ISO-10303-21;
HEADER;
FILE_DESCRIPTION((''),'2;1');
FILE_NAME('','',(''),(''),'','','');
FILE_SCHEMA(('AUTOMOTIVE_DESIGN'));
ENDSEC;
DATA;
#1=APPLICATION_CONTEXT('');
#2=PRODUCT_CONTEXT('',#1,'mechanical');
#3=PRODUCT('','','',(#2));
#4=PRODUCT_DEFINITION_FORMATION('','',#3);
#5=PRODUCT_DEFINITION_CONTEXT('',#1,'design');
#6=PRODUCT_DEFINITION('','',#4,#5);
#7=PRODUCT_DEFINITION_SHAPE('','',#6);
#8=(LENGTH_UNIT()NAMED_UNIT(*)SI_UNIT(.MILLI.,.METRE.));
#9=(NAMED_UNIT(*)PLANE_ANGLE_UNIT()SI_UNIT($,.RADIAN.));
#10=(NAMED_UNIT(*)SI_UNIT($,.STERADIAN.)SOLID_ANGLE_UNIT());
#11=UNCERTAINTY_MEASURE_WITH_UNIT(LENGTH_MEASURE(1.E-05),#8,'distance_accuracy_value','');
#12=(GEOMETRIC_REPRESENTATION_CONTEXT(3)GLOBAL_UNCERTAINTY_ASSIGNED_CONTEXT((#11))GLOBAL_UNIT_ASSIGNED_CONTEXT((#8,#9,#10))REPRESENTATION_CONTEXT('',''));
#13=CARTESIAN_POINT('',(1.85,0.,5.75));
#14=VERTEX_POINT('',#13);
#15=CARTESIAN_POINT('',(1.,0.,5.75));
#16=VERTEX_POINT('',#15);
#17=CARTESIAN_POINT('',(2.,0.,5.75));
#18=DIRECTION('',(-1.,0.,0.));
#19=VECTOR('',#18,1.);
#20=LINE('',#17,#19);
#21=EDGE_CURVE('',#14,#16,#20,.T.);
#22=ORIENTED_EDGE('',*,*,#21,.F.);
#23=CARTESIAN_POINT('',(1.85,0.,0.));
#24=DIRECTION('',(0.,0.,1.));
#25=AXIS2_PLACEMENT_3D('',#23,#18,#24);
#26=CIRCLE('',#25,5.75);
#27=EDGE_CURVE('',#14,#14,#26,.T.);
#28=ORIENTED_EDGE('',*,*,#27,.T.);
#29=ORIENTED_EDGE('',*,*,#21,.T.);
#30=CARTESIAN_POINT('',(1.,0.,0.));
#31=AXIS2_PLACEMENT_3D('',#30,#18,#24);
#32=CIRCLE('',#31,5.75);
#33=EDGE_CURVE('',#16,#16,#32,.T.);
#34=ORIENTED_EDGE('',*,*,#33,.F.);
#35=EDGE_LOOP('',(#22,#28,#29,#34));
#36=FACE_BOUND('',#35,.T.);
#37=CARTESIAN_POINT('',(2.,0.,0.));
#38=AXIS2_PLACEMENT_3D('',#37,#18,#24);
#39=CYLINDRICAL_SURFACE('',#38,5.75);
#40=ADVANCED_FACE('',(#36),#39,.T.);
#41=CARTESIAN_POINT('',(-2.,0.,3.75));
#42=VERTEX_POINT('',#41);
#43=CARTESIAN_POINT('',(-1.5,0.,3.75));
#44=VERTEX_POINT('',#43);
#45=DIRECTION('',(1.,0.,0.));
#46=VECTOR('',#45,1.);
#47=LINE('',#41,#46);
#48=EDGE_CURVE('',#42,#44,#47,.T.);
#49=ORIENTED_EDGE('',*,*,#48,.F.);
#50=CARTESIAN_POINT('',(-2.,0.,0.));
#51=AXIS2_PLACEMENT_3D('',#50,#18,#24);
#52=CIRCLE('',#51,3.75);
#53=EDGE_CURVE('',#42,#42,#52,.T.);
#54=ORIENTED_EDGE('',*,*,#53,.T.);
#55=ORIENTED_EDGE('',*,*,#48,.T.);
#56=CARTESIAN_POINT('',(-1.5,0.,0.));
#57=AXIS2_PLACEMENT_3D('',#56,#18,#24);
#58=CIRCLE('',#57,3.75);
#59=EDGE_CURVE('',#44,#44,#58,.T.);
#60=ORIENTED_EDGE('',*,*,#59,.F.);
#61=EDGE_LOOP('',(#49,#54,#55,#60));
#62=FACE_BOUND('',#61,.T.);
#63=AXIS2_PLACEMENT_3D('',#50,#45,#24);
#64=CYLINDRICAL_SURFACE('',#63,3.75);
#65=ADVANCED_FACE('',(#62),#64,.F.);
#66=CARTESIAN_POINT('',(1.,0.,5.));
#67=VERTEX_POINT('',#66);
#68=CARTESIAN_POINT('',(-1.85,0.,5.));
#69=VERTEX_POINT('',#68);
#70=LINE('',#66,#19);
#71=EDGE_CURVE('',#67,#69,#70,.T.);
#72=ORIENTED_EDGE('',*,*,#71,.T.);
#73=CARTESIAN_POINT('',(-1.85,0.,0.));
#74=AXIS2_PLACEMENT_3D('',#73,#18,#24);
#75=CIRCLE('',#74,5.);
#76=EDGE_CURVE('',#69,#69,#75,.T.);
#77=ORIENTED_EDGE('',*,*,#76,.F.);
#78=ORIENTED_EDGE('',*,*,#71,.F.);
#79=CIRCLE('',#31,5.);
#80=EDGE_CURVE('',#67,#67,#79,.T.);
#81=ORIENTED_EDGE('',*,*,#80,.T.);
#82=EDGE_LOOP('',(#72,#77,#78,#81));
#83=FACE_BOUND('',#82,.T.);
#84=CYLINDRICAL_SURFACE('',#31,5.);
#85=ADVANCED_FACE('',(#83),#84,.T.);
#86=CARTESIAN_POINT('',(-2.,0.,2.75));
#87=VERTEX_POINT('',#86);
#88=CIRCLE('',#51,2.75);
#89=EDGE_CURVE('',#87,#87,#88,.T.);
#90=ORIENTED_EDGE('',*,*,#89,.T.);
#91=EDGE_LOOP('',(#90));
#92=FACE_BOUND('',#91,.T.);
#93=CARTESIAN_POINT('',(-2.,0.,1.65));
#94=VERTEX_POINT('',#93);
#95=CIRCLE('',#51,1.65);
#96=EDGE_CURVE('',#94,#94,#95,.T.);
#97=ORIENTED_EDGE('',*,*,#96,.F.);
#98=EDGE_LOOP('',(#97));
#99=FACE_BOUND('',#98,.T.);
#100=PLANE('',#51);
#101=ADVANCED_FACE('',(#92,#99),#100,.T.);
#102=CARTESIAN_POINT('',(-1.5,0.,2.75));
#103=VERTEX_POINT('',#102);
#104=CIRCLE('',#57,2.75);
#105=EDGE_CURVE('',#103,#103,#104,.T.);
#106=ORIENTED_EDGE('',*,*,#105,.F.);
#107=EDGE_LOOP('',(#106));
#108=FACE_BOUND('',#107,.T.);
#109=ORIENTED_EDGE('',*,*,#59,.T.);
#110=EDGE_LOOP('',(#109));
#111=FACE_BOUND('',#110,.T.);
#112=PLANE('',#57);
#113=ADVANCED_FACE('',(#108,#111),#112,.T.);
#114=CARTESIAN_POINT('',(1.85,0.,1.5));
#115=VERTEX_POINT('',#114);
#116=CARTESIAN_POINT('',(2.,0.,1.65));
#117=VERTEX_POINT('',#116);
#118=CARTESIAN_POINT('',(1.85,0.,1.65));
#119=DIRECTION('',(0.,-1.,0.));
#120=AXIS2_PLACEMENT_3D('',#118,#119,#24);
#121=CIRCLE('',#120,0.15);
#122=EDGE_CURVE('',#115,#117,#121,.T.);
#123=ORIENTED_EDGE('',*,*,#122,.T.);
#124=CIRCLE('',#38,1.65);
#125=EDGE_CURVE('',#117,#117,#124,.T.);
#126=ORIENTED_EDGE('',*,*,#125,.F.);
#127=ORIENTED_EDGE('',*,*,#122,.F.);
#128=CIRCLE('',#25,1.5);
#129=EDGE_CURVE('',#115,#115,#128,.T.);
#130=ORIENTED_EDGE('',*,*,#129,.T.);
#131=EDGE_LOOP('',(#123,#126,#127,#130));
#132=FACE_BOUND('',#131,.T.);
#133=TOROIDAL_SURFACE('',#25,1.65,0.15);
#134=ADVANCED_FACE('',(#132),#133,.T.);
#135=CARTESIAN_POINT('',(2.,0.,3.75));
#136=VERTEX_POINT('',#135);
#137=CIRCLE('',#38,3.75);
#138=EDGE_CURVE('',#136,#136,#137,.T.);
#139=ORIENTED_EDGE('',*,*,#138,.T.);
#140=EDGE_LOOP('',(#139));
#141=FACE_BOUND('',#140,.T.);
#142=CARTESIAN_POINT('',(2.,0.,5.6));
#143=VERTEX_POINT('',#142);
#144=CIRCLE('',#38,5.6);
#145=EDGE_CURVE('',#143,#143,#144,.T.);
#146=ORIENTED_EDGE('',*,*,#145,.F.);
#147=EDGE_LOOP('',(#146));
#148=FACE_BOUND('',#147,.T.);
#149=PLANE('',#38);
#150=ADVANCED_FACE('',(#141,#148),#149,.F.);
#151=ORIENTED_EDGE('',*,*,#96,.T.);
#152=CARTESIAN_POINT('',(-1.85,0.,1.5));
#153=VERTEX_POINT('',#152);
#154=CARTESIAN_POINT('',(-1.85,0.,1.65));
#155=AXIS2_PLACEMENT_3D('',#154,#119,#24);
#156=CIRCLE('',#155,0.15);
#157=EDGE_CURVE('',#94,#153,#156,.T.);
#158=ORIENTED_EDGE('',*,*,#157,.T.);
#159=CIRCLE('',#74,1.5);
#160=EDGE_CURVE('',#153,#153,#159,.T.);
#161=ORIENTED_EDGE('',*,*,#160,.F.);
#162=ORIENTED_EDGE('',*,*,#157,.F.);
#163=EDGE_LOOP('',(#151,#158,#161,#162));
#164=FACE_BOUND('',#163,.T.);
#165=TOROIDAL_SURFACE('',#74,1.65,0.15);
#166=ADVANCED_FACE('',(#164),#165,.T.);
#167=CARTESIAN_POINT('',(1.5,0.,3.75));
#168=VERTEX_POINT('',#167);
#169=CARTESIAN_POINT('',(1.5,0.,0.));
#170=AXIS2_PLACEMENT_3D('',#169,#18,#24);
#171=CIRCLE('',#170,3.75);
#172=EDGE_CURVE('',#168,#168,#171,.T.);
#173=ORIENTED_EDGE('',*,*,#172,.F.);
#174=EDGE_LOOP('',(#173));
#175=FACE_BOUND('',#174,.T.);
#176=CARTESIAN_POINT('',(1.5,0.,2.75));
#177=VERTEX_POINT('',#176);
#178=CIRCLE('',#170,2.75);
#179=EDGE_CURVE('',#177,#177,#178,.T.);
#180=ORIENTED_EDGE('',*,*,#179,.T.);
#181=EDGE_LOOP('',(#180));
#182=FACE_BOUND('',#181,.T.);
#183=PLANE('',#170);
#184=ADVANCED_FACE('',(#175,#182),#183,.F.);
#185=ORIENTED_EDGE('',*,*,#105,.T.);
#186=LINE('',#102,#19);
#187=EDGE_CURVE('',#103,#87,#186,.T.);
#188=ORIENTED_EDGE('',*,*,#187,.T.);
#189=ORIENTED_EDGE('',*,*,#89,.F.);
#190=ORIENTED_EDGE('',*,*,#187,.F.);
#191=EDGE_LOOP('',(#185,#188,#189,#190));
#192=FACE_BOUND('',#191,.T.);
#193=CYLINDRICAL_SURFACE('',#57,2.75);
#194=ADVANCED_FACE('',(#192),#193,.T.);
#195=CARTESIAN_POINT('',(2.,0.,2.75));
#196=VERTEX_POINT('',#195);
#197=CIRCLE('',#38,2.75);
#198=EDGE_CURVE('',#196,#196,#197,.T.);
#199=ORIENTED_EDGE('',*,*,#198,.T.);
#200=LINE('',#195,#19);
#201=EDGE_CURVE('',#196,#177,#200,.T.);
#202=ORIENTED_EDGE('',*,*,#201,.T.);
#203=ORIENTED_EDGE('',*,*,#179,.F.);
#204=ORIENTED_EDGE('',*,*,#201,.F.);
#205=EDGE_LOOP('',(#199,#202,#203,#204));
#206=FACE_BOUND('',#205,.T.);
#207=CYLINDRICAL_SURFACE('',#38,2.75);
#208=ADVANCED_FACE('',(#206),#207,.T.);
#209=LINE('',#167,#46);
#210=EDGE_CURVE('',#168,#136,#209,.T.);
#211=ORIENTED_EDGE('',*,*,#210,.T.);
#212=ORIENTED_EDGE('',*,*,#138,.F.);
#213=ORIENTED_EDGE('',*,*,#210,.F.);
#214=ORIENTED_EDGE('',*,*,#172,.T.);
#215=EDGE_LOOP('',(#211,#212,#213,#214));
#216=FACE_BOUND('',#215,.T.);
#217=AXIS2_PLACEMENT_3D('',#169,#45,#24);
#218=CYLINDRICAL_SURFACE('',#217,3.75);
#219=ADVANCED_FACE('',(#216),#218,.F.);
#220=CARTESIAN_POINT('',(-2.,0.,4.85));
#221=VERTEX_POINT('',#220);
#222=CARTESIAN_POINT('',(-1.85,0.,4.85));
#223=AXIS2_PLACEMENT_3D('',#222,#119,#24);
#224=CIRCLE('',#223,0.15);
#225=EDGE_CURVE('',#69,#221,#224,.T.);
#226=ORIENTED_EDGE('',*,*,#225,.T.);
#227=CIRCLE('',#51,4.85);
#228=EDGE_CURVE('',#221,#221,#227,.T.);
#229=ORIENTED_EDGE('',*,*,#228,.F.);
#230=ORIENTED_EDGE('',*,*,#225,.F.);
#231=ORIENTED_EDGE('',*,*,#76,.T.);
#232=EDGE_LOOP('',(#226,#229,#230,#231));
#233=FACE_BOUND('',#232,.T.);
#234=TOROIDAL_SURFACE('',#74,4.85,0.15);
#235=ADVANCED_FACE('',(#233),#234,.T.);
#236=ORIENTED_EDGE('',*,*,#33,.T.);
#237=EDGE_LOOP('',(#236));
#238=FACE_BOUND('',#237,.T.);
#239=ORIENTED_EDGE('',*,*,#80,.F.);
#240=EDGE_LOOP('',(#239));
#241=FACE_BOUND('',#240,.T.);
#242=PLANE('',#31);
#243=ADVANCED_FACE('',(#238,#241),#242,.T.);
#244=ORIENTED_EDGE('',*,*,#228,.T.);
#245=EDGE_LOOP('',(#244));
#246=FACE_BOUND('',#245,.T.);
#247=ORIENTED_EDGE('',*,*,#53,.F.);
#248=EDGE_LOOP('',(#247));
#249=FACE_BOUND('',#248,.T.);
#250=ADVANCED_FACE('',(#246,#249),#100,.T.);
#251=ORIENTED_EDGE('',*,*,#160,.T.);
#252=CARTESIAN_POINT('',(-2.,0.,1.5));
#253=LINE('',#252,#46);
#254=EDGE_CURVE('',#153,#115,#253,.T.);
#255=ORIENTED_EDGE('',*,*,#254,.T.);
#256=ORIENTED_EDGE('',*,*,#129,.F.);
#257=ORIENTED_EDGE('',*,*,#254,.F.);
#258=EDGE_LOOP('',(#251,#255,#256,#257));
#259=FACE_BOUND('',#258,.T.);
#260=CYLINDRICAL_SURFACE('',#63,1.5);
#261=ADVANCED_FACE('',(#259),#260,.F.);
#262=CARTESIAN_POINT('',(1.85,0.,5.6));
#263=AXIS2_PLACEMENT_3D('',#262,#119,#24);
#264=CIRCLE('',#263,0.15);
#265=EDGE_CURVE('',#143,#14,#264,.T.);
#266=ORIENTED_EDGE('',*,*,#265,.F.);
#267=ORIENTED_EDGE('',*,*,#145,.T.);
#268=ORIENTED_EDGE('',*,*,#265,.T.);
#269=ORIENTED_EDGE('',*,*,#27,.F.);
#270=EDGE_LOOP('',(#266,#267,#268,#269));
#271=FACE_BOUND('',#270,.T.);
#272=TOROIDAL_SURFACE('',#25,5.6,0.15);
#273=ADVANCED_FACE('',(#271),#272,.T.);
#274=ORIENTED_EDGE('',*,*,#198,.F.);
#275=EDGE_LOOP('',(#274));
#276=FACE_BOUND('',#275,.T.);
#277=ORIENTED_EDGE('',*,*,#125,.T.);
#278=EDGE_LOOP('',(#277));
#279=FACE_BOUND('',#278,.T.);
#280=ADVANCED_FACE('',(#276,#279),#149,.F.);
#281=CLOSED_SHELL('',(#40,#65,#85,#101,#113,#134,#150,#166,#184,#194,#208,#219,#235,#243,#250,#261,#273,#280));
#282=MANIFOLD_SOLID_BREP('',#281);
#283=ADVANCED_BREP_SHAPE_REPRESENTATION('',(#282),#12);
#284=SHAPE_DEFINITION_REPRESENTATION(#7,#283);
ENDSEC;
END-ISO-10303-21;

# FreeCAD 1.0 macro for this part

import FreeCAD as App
import Part
import Sketcher

V = App.Vector
Q = App.Units.Quantity


def edges_at(feature, points):
    """Names of the edges that pass closest to the given points."""
    edges = feature.Shape.Edges
    near = lambda p: min(range(len(edges)), key=lambda i: edges[i].distToShape(Part.Vertex(*p))[0])
    return sorted({f"Edge{near(p) + 1}" for p in points})

doc = App.newDocument("Part")
body = doc.addObject("PartDesign::Body", "Body")

sketch1 = doc.addObject("Sketcher::SketchObject", "Sketch")
body.addObject(sketch1)
sketch1.AttachmentSupport = (doc.XZ_Plane, [""])
sketch1.MapMode = "FlatFace"
sketch1.addGeometry([
    Part.LineSegment(V(-2, 2.8, 0), V(-2, 1.5, 0)),
    Part.LineSegment(V(-2, 1.5, 0), V(2, 1.5, 0)),
    Part.LineSegment(V(2, 1.5, 0), V(2, 2.8, 0)),
    Part.LineSegment(V(2, 2.8, 0), V(1.5, 2.8, 0)),
    Part.LineSegment(V(1.5, 2.8, 0), V(1.5, 3.8, 0)),
    Part.LineSegment(V(1.5, 3.8, 0), V(2, 3.8, 0)),
    Part.LineSegment(V(2, 3.8, 0), V(2, 5.8, 0)),
    Part.LineSegment(V(2, 5.8, 0), V(1, 5.8, 0)),
    Part.LineSegment(V(1, 5.8, 0), V(1, 5, 0)),
    Part.LineSegment(V(1, 5, 0), V(-2, 5, 0)),
    Part.LineSegment(V(-2, 5, 0), V(-2, 3.8, 0)),
    Part.LineSegment(V(-2, 3.8, 0), V(-1.5, 3.8, 0)),
    Part.LineSegment(V(-1.5, 3.8, 0), V(-1.5, 2.8, 0)),
    Part.LineSegment(V(-1.5, 2.8, 0), V(-2, 2.8, 0)),
], False)
sketch1.addConstraint([
    Sketcher.Constraint("Coincident", 0, 2, 1, 1),
    Sketcher.Constraint("Coincident", 1, 2, 2, 1),
    Sketcher.Constraint("Coincident", 2, 2, 3, 1),
    Sketcher.Constraint("Coincident", 3, 2, 4, 1),
    Sketcher.Constraint("Coincident", 4, 2, 5, 1),
    Sketcher.Constraint("Coincident", 5, 2, 6, 1),
    Sketcher.Constraint("Coincident", 6, 2, 7, 1),
    Sketcher.Constraint("Coincident", 7, 2, 8, 1),
    Sketcher.Constraint("Coincident", 8, 2, 9, 1),
    Sketcher.Constraint("Coincident", 9, 2, 10, 1),
    Sketcher.Constraint("Coincident", 10, 2, 11, 1),
    Sketcher.Constraint("Coincident", 11, 2, 12, 1),
    Sketcher.Constraint("Coincident", 12, 2, 13, 1),
    Sketcher.Constraint("Coincident", 13, 2, 0, 1),
    Sketcher.Constraint("Vertical", 0),
    Sketcher.Constraint("Horizontal", 1),
    Sketcher.Constraint("Vertical", 2),
    Sketcher.Constraint("Horizontal", 3),
    Sketcher.Constraint("Vertical", 4),
    Sketcher.Constraint("Horizontal", 5),
    Sketcher.Constraint("Vertical", 6),
    Sketcher.Constraint("Horizontal", 7),
    Sketcher.Constraint("Vertical", 8),
    Sketcher.Constraint("Horizontal", 9),
    Sketcher.Constraint("Vertical", 10),
    Sketcher.Constraint("Horizontal", 11),
    Sketcher.Constraint("Vertical", 12),
    Sketcher.Constraint("Horizontal", 13),
    Sketcher.Constraint("Symmetric", 5, 2, 10, 2, -2),
    Sketcher.Constraint("Symmetric", 3, 2, 12, 2, -2),
    Sketcher.Constraint("Vertical", 2, 2, 5, 2),
    Sketcher.Constraint("Vertical", 0, 2, 9, 2),
    Sketcher.Constraint("Equal", 7, 4),
    Sketcher.Constraint("Equal", 2, 10),
    Sketcher.Constraint("DistanceX", 1, 1, 1, 2, Q("4 mm")),
    Sketcher.Constraint("DistanceX", 7, 2, 7, 1, Q("1 mm")),
    Sketcher.Constraint("DistanceY", 6, 1, 6, 2, Q("2 mm")),
    Sketcher.Constraint("DistanceX", 3, 2, 3, 1, Q("0.5 mm")),
    Sketcher.Constraint("DistanceY", -1, 1, 8, 2, Q("5 mm")),
    Sketcher.Constraint("DistanceY", 0, 2, 0, 1, Q("1.25 mm")),
])
revolution = doc.addObject("PartDesign::Revolution", "Revolution")
body.addObject(revolution)
revolution.Profile = sketch1
revolution.ReferenceAxis = (sketch1, ["H_Axis"])
revolution.Angle = 360
doc.recompute()

fillet = doc.addObject("PartDesign::Fillet", "Fillet")
body.addObject(fillet)
fillet.Base = (revolution, edges_at(revolution, [
    (-2, 0, -5),
    (2, 0, -5.75),
    (-2, 0, -1.5),
    (2, 0, -1.5),
]))
fillet.Radius = 0.15

doc.recompute()
